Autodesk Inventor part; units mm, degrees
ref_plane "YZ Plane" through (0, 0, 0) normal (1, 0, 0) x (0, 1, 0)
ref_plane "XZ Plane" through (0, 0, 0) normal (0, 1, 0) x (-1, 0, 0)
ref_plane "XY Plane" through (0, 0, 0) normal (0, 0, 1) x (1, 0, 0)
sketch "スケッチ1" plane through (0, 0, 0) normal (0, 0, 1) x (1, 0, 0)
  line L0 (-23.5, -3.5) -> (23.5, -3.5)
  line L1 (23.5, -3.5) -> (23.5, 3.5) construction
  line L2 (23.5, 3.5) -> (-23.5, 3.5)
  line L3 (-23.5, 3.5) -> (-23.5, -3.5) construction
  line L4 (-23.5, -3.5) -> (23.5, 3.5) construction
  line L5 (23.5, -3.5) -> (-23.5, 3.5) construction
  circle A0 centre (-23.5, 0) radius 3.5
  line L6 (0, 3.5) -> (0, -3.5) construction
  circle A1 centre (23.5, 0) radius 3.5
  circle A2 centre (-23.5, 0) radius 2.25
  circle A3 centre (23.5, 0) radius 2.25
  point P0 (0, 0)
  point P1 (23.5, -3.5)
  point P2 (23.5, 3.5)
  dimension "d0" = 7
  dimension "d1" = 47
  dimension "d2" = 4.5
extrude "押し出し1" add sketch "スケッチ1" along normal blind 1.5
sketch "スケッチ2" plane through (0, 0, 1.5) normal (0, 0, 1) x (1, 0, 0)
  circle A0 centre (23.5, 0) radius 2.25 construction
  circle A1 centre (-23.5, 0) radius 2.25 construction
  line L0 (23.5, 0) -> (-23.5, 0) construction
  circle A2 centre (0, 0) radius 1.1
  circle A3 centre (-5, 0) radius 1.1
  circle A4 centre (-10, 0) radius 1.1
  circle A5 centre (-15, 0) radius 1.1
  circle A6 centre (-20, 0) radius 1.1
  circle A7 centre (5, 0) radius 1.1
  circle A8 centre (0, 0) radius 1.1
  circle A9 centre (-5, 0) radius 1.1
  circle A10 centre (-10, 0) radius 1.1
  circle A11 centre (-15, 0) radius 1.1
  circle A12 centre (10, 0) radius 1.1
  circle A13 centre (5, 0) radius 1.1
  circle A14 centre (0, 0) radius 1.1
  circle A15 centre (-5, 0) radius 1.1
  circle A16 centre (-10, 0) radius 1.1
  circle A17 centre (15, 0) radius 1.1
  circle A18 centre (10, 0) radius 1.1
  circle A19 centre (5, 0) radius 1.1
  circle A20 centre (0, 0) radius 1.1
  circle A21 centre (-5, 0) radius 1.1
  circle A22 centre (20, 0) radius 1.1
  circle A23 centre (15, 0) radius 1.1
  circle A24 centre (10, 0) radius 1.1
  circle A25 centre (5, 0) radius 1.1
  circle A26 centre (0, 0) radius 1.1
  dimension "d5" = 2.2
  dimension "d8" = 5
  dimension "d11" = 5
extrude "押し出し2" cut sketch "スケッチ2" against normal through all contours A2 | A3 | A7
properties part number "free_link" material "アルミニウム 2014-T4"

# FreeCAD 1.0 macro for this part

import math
import FreeCAD as App
import Part
import Sketcher
from FreeCAD import Vector
Q = App.Units.Quantity

doc = App.newDocument("Part")
body = doc.addObject("PartDesign::Body", "Body")

# Sketch on XY plane
sketch1 = doc.addObject("Sketcher::SketchObject", "Sketch")
body.addObject(sketch1)
sketch1.AttachmentSupport = (doc.XY_Plane, [""])
sketch1.MapMode = "FlatFace"
sketch1.addGeometry([
    Part.LineSegment(Vector(23.5, 3.5, 0), Vector(-23.5, 3.5, 0)),  # 0
    Part.ArcOfCircle(Part.Circle(Vector(-23.5, 0, 0), Vector(0, 0, 1), 3.5), math.radians(90), math.radians(270)),  # 1
    Part.LineSegment(Vector(-23.5, -3.5, 0), Vector(23.5, -3.5, 0)),  # 2
    Part.ArcOfCircle(Part.Circle(Vector(23.5, 0, 0), Vector(0, 0, 1), 3.5), math.radians(-90), math.radians(90)),  # 3
    Part.Circle(Vector(-23.5, 0, 0), Vector(0, 0, 1), 2.2),  # 4
    Part.Circle(Vector(23.5, 0, 0), Vector(0, 0, 1), 2.2),  # 5
], False)
sketch1.addConstraint([
    Sketcher.Constraint("Tangent", 0, 2, 1, 1),
    Sketcher.Constraint("Tangent", 1, 2, 2, 1),
    Sketcher.Constraint("Tangent", 2, 2, 3, 1),
    Sketcher.Constraint("Tangent", 3, 2, 0, 1),
    Sketcher.Constraint("Horizontal", 0),
    Sketcher.Constraint("Horizontal", 2),
    Sketcher.Constraint("Coincident", 4, 3, 1, 3),
    Sketcher.Constraint("Coincident", 5, 3, 3, 3),
    Sketcher.Constraint("Equal", 4, 5),
    Sketcher.Constraint("Symmetric", 1, 3, 3, 3, -1, 1),
    Sketcher.Constraint("Diameter", 4, Q("4.5 mm")),
    Sketcher.Constraint("Radius", 1, Q("3.5 mm")),
    Sketcher.Constraint("DistanceX", 0, 2, 0, 1, Q("47 mm")),
])
pad1 = doc.addObject("PartDesign::Pad", "Pad")
body.addObject(pad1)
pad1.Profile = sketch1
pad1.Length = 1.5

# Sketch on XY plane
sketch2 = doc.addObject("Sketcher::SketchObject", "Sketch001")
body.addObject(sketch2)
sketch2.AttachmentSupport = (doc.XY_Plane, [""])
sketch2.MapMode = "FlatFace"
sketch2.AttachmentOffset = App.Placement(Vector(0, 0, 1.5), App.Rotation())
sketch2.addGeometry([
    Part.Circle(Vector(0, 0, 0), Vector(0, 0, 1), 1.1),
    Part.Circle(Vector(-5, 0, 0), Vector(0, 0, 1), 1.1),
    Part.Circle(Vector(5, 0, 0), Vector(0, 0, 1), 1.1),
], False)
sketch2.addConstraint([
    Sketcher.Constraint("Coincident", 0, 3, -1, 1),
    Sketcher.Constraint("Equal", 0, 1),
    Sketcher.Constraint("Equal", 1, 2),
    Sketcher.Constraint("Symmetric", 1, 3, 2, 3, -1, 1),
    Sketcher.Constraint("PointOnObject", 1, 3, -1),
    Sketcher.Constraint("Diameter", 0, Q("2.2 mm")),
    Sketcher.Constraint("DistanceX", 1, 3, -1, 1, Q("5 mm")),
])
pocket1 = doc.addObject("PartDesign::Pocket", "Pocket")
body.addObject(pocket1)
pocket1.Profile = sketch2
pocket1.Type = "ThroughAll"

doc.recompute()
